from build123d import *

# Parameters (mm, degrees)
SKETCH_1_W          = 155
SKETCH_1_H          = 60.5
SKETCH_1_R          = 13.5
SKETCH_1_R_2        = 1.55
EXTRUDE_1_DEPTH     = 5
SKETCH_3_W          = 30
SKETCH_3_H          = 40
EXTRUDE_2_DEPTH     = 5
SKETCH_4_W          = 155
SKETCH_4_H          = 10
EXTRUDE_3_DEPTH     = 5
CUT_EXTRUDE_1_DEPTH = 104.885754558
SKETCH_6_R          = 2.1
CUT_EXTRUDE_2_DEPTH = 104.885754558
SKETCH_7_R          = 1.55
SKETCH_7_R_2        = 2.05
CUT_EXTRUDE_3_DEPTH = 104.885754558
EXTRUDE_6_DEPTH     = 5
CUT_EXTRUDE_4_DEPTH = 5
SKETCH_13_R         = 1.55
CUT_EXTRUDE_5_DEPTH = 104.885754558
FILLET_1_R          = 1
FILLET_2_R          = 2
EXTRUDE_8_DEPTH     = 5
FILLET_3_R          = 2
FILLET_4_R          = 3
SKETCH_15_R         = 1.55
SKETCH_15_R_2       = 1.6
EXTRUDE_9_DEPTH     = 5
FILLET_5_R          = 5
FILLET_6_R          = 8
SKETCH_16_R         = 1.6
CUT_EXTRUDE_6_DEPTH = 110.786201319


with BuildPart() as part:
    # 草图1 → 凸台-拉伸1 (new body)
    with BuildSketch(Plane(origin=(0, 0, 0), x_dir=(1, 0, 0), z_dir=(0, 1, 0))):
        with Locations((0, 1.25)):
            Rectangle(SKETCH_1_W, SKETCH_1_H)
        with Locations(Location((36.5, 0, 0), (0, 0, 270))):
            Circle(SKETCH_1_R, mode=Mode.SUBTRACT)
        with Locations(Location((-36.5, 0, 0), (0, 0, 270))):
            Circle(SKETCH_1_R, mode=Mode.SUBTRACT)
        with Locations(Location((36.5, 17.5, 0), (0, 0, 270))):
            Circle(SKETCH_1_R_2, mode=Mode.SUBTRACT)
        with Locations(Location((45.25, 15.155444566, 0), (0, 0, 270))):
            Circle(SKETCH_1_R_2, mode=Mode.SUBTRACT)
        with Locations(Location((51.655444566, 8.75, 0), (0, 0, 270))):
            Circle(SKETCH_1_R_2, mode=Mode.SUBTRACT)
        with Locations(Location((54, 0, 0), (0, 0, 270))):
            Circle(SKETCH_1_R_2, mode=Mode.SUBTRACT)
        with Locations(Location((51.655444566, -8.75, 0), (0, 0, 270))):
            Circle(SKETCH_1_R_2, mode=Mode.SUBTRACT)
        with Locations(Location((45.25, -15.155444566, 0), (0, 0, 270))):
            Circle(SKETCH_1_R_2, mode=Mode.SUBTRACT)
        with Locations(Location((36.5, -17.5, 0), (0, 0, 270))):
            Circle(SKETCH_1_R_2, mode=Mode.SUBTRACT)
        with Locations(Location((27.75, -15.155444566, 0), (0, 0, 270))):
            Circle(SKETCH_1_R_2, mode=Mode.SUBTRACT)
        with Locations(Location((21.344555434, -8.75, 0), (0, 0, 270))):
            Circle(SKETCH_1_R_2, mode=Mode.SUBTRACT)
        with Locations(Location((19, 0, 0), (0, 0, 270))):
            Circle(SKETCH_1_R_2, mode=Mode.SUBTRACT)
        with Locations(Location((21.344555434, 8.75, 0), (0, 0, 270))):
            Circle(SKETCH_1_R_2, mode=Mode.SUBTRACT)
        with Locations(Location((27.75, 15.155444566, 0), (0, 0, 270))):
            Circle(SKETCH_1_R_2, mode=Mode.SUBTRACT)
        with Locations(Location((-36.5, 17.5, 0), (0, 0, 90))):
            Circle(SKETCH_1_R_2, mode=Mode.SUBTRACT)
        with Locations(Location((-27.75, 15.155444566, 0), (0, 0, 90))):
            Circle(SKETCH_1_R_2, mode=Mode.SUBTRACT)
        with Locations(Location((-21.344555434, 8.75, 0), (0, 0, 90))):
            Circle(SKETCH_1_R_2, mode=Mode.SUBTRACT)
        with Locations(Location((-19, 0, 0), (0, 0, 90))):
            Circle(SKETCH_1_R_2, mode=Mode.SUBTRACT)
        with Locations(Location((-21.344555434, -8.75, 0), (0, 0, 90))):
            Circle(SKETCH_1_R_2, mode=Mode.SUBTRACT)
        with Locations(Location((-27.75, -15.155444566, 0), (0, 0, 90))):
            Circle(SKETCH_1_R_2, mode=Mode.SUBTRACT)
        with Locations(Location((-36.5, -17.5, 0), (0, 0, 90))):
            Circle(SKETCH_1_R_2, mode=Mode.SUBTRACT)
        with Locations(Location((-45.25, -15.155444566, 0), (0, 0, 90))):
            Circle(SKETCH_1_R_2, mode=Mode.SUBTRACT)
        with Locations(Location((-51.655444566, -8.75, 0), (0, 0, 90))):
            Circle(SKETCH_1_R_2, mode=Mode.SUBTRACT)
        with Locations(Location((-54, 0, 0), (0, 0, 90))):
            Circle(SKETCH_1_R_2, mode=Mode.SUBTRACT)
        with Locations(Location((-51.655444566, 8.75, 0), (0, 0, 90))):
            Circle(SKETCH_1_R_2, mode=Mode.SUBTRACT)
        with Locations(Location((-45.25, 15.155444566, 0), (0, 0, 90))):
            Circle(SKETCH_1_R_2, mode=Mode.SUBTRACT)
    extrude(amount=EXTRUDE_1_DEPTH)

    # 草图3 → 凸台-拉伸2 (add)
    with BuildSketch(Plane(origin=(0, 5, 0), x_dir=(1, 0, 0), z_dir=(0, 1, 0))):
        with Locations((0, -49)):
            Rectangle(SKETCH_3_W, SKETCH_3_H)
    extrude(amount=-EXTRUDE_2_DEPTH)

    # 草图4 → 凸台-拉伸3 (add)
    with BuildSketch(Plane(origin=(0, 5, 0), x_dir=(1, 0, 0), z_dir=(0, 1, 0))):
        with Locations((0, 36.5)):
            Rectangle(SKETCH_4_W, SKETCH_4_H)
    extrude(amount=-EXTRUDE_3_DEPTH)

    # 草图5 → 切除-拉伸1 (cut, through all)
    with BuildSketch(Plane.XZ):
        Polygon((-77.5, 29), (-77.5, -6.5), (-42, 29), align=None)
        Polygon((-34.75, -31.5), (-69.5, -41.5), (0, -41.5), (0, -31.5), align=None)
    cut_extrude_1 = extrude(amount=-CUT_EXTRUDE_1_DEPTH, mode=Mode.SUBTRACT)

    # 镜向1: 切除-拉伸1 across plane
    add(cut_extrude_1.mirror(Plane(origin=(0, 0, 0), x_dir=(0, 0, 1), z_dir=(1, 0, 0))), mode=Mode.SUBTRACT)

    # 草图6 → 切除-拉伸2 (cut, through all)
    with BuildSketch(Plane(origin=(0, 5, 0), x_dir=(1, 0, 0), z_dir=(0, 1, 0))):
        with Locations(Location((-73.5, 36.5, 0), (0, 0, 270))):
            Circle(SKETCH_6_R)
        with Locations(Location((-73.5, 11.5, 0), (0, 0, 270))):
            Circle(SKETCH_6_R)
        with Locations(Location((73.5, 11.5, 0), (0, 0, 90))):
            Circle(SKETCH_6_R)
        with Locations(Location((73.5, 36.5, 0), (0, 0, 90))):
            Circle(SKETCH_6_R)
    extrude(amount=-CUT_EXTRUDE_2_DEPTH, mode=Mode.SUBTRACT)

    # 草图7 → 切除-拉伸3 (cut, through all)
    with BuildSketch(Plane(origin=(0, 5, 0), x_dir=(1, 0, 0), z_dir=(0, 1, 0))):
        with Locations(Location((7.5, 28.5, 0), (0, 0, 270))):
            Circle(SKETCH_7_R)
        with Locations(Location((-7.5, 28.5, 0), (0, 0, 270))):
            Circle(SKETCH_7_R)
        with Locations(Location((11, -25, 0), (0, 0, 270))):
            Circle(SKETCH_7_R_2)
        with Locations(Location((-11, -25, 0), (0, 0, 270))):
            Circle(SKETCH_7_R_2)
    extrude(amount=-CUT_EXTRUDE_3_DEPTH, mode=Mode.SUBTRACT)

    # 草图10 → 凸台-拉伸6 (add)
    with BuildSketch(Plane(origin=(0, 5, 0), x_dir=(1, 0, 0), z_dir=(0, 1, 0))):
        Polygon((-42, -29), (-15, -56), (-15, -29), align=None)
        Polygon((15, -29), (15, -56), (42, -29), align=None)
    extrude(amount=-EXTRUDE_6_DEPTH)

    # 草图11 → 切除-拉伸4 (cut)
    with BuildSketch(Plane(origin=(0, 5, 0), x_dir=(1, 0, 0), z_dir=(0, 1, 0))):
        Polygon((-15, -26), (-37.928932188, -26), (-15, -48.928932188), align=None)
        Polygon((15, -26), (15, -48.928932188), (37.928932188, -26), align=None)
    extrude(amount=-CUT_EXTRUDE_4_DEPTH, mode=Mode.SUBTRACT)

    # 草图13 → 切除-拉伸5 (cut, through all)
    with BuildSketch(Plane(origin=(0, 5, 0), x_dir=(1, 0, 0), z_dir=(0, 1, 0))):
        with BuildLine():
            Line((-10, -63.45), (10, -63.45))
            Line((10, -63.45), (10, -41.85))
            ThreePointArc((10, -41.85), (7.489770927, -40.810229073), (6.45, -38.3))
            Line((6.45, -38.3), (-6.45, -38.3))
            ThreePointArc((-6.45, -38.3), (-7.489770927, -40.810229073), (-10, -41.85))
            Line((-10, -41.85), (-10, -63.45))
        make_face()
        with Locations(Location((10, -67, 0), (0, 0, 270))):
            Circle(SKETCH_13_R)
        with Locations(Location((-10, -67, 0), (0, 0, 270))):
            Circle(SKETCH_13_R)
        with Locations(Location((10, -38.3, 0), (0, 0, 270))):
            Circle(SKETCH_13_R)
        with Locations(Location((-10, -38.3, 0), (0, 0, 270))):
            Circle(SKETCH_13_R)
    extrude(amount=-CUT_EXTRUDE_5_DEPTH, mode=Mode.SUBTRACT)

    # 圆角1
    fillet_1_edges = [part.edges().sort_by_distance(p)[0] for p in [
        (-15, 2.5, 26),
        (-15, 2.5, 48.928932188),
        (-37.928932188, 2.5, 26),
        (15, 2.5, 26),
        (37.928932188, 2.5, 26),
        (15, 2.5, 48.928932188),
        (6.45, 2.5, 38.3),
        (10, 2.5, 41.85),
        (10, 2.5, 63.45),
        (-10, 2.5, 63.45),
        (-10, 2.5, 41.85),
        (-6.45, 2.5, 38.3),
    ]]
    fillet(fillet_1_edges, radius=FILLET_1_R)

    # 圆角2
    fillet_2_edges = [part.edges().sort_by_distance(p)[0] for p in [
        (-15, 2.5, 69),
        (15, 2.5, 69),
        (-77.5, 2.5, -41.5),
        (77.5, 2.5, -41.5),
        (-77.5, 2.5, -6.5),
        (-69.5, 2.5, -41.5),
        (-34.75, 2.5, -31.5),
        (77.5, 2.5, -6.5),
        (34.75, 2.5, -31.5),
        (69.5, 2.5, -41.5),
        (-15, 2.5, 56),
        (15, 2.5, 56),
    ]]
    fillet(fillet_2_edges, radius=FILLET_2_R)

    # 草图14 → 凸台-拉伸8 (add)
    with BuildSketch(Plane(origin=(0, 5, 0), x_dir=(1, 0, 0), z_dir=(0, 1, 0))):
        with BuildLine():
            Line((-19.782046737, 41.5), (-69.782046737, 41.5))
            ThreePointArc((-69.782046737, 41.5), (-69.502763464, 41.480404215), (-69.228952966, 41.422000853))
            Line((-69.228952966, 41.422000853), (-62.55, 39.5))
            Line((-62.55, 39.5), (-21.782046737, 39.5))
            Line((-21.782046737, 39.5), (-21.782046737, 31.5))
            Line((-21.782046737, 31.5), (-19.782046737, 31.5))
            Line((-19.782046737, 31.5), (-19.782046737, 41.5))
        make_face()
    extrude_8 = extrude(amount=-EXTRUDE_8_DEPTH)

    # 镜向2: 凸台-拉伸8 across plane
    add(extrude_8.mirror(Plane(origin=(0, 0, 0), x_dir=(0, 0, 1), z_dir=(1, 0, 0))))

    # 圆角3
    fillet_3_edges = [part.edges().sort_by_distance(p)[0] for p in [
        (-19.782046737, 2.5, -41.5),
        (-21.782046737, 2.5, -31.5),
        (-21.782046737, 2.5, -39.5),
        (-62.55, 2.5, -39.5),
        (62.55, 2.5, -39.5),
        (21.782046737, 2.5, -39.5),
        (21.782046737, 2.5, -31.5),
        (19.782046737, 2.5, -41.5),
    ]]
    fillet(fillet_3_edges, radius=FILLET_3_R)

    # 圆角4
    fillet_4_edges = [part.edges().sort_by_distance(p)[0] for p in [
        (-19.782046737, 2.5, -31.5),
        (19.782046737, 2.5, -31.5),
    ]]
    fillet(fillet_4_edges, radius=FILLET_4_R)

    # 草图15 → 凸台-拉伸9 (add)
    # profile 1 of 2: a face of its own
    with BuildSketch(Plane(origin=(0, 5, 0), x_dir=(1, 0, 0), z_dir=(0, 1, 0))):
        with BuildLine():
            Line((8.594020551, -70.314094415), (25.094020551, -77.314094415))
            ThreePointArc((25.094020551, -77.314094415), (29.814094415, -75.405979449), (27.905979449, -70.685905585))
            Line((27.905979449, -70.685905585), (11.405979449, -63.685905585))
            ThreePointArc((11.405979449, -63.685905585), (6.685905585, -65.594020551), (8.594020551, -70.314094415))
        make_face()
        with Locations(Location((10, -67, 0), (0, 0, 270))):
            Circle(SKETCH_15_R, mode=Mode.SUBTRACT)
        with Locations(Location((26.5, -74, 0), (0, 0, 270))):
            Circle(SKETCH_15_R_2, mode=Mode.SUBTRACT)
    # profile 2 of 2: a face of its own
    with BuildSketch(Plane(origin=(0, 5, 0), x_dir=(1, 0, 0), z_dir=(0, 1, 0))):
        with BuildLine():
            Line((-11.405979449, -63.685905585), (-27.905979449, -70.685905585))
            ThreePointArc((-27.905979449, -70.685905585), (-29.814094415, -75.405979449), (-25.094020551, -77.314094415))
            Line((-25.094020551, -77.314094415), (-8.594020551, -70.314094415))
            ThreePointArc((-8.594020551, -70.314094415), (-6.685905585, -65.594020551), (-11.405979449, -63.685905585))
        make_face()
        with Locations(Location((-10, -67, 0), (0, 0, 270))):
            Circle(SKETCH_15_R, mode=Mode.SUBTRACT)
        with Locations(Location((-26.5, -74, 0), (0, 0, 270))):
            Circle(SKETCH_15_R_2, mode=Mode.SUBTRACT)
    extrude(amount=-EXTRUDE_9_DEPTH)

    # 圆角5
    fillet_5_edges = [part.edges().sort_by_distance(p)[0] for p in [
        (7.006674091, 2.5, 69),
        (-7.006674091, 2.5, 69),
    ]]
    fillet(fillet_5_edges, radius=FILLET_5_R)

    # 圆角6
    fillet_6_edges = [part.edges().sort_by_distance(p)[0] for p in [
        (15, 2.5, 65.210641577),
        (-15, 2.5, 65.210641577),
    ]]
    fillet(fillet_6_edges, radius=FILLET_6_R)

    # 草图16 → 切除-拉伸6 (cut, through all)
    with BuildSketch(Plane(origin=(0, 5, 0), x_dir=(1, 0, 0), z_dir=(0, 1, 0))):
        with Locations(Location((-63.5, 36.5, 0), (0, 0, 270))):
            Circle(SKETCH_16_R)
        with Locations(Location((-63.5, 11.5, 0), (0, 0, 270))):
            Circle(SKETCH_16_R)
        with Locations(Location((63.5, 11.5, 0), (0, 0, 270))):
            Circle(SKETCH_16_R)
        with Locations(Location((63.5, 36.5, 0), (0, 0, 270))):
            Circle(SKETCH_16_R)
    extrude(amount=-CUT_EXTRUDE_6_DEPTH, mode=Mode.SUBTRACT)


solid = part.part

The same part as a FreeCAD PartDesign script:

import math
import FreeCAD as App
import Part
import Sketcher

V = App.Vector


def edges_at(feature, points):
    """Names of the edges that pass closest to the given points."""
    edges = feature.Shape.Edges
    near = lambda p: min(range(len(edges)), key=lambda i: edges[i].distToShape(Part.Vertex(*p))[0])
    return sorted({f"Edge{near(p) + 1}" for p in points})


def add_polygon(sketch, points):
    """Adds a closed chain of lines whose ends are joined by coincident constraints."""
    first, n = sketch.GeometryCount, len(points)
    for a, b in zip(points, points[1:] + points[:1]):
        sketch.addGeometry(Part.LineSegment(App.Vector(*a, 0), App.Vector(*b, 0)), False)
    for i in range(n):
        sketch.addConstraint(Sketcher.Constraint("Coincident", first + i, 2, first + (i + 1) % n, 1))

doc = App.newDocument("Part")
body = doc.addObject("PartDesign::Body", "Body")

sketch1 = body.newObject("Sketcher::SketchObject", "Sketch")
sketch1.AttachmentSupport = (doc.getObject("XZ_Plane"), [""])
sketch1.MapMode = "FlatFace"
add_polygon(sketch1, [(-77.5, -31.5), (-77.5, 29), (77.5, 29), (77.5, -31.5)])
sketch1.addGeometry(Part.Circle(V(-45.2, 15.2, 0), V(0, 0, 1), 1.6), False)
sketch1.addGeometry(Part.Circle(V(-36.5, 17.5, 0), V(0, 0, 1), 1.6), False)
sketch1.addGeometry(Part.Circle(V(-27.8, 15.2, 0), V(0, 0, 1), 1.6), False)
sketch1.addGeometry(Part.Circle(V(-51.7, 8.8, 0), V(0, 0, 1), 1.6), False)
sketch1.addGeometry(Part.Circle(V(-21.3, 8.8, 0), V(0, 0, 1), 1.6), False)
sketch1.addGeometry(Part.Circle(V(27.8, 15.2, 0), V(0, 0, 1), 1.6), False)
sketch1.addGeometry(Part.Circle(V(36.5, 17.5, 0), V(0, 0, 1), 1.6), False)
sketch1.addGeometry(Part.Circle(V(45.2, 15.2, 0), V(0, 0, 1), 1.6), False)
sketch1.addGeometry(Part.Circle(V(21.3, 8.8, 0), V(0, 0, 1), 1.6), False)
sketch1.addGeometry(Part.Circle(V(51.7, 8.8, 0), V(0, 0, 1), 1.6), False)
sketch1.addGeometry(Part.Circle(V(-54, 0, 0), V(0, 0, 1), 1.6), False)
sketch1.addGeometry(Part.Circle(V(-36.5, 0, 0), V(0, 0, 1), 13.5), False)
sketch1.addGeometry(Part.Circle(V(-51.7, -8.8, 0), V(0, 0, 1), 1.6), False)
sketch1.addGeometry(Part.Circle(V(-19, 0, 0), V(0, 0, 1), 1.6), False)
sketch1.addGeometry(Part.Circle(V(-21.3, -8.8, 0), V(0, 0, 1), 1.6), False)
sketch1.addGeometry(Part.Circle(V(-45.2, -15.2, 0), V(0, 0, 1), 1.6), False)
sketch1.addGeometry(Part.Circle(V(-36.5, -17.5, 0), V(0, 0, 1), 1.6), False)
sketch1.addGeometry(Part.Circle(V(-27.8, -15.2, 0), V(0, 0, 1), 1.6), False)
sketch1.addGeometry(Part.Circle(V(19, 0, 0), V(0, 0, 1), 1.6), False)
sketch1.addGeometry(Part.Circle(V(21.3, -8.8, 0), V(0, 0, 1), 1.6), False)
sketch1.addGeometry(Part.Circle(V(36.5, 0, 0), V(0, 0, 1), 13.5), False)
sketch1.addGeometry(Part.Circle(V(54, 0, 0), V(0, 0, 1), 1.6), False)
sketch1.addGeometry(Part.Circle(V(51.7, -8.8, 0), V(0, 0, 1), 1.6), False)
sketch1.addGeometry(Part.Circle(V(27.8, -15.2, 0), V(0, 0, 1), 1.6), False)
sketch1.addGeometry(Part.Circle(V(36.5, -17.5, 0), V(0, 0, 1), 1.6), False)
sketch1.addGeometry(Part.Circle(V(45.2, -15.2, 0), V(0, 0, 1), 1.6), False)
sketch1.addConstraint([
    Sketcher.Constraint("Vertical", 0),
    Sketcher.Constraint("Horizontal", 1),
    Sketcher.Constraint("Vertical", 2),
    Sketcher.Constraint("Horizontal", 3),
    Sketcher.Constraint("Equal", 4, 5),
    Sketcher.Constraint("Equal", 5, 6),
    Sketcher.Constraint("Equal", 6, 7),
    Sketcher.Constraint("Equal", 7, 8),
    Sketcher.Constraint("Equal", 8, 9),
    Sketcher.Constraint("Equal", 9, 10),
    Sketcher.Constraint("Equal", 10, 11),
    Sketcher.Constraint("Equal", 11, 12),
    Sketcher.Constraint("Equal", 12, 13),
    Sketcher.Constraint("Equal", 13, 14),
    Sketcher.Constraint("Equal", 14, 16),
    Sketcher.Constraint("Equal", 16, 17),
    Sketcher.Constraint("Equal", 17, 18),
    Sketcher.Constraint("Equal", 18, 19),
    Sketcher.Constraint("Equal", 19, 20),
    Sketcher.Constraint("Equal", 20, 21),
    Sketcher.Constraint("Equal", 21, 22),
    Sketcher.Constraint("Equal", 22, 23),
    Sketcher.Constraint("Equal", 15, 24),
    Sketcher.Constraint("Equal", 23, 25),
    Sketcher.Constraint("Equal", 25, 26),
    Sketcher.Constraint("Equal", 26, 27),
    Sketcher.Constraint("Equal", 27, 28),
    Sketcher.Constraint("Equal", 28, 29),
    Sketcher.Constraint("Symmetric", 13, 3, 16, 3, -1, 1),
    Sketcher.Constraint("Symmetric", 12, 3, 18, 3, -1, 1),
    Sketcher.Constraint("Symmetric", 11, 3, 19, 3, -1, 1),
    Sketcher.Constraint("Symmetric", 10, 3, 20, 3, -1, 1),
    Sketcher.Constraint("Symmetric", 9, 3, 21, 3, -1, 1),
    Sketcher.Constraint("Symmetric", 17, 3, 22, 3, -1, 1),
    Sketcher.Constraint("Symmetric", 8, 3, 23, 3, -1, 1),
    Sketcher.Constraint("Symmetric", 15, 3, 24, 3, -1, 1),
    Sketcher.Constraint("Symmetric", 14, 3, 25, 3, -1, 1),
    Sketcher.Constraint("Symmetric", 7, 3, 26, 3, -1, 1),
    Sketcher.Constraint("Symmetric", 6, 3, 27, 3, -1, 1),
    Sketcher.Constraint("Symmetric", 5, 3, 28, 3, -1, 1),
    Sketcher.Constraint("Symmetric", 4, 3, 29, 3, -1, 1),
    Sketcher.Constraint("Symmetric", 6, 3, 9, 3, -2),
    Sketcher.Constraint("Symmetric", 5, 3, 10, 3, -2),
    Sketcher.Constraint("Symmetric", 4, 3, 11, 3, -2),
    Sketcher.Constraint("Symmetric", 8, 3, 12, 3, -2),
    Sketcher.Constraint("Symmetric", 7, 3, 13, 3, -2),
    Sketcher.Constraint("PointOnObject", 14, 3, -1),
    Sketcher.Constraint("PointOnObject", 15, 3, -1),
    Sketcher.Constraint("PointOnObject", 17, 3, -1),
    Sketcher.Constraint("Horizontal", 4, 3, 6, 3),
    Sketcher.Constraint("Horizontal", 7, 3, 8, 3),
    Sketcher.Constraint("Vertical", 5, 3, 15, 3),
    Sketcher.Constraint("Diameter", 15, 27.0),
    Sketcher.Constraint("Diameter", 4, 3.1),
    Sketcher.Constraint("DistanceX", 1, 1, 1, 2, 155.0),
    Sketcher.Constraint("DistanceY", 0, 1, 0, 2, 60.5),
    Sketcher.Constraint("DistanceX", 14, 3, -1, 1, 54.0),
    Sketcher.Constraint("DistanceX", 17, 3, -1, 1, 19.0),
    Sketcher.Constraint("DistanceY", -1, 1, 0, 2, 29.0),
    Sketcher.Constraint("DistanceX", 4, 3, 9, 3, 73.0),
    Sketcher.Constraint("DistanceX", 5, 3, 10, 3, 73.0),
    Sketcher.Constraint("DistanceX", 8, 3, 13, 3, 73.0),
    Sketcher.Constraint("DistanceX", 0, 2, 5, 3, 41.0),
    Sketcher.Constraint("DistanceY", 2, 2, 28, 3, 14.0),
    Sketcher.Constraint("DistanceX", 4, 3, 6, 3, 17.5),
    Sketcher.Constraint("DistanceY", 16, 3, 7, 3, 17.5),
    Sketcher.Constraint("DistanceX", 7, 3, 8, 3, 30.310889),
    Sketcher.Constraint("DistanceY", -1, 1, 4, 3, 15.155445),
])
pad1 = body.newObject("PartDesign::Pad", "Pad")
pad1.Profile = sketch1
pad1.Length = 5
pad1.Reversed = True

sketch2 = body.newObject("Sketcher::SketchObject", "Sketch001")
sketch2.AttachmentSupport = (doc.getObject("XZ_Plane"), [""])
sketch2.MapMode = "FlatFace"
sketch2.AttachmentOffset = App.Placement(V(0, 0, -5), App.Rotation())
add_polygon(sketch2, [(-15, 29), (-15, 69), (15, 69), (15, 29)])
sketch2.addConstraint([
    Sketcher.Constraint("Vertical", 0),
    Sketcher.Constraint("Horizontal", 1),
    Sketcher.Constraint("Vertical", 2),
    Sketcher.Constraint("Horizontal", 3),
    Sketcher.Constraint("DistanceX", 1, 1, 1, 2, 30.0),
    Sketcher.Constraint("DistanceY", 0, 1, 0, 2, 40.0),
    Sketcher.Constraint("DistanceX", 0, 2, -1, 1, 15.0),
    Sketcher.Constraint("DistanceY", -1, 1, 0, 2, 69.0),
])
pad2 = body.newObject("PartDesign::Pad", "Pad001")
pad2.Profile = sketch2
pad2.Length = 5

sketch3 = body.newObject("Sketcher::SketchObject", "Sketch002")
sketch3.AttachmentSupport = (doc.getObject("XZ_Plane"), [""])
sketch3.MapMode = "FlatFace"
sketch3.AttachmentOffset = App.Placement(V(0, 0, -5), App.Rotation())
add_polygon(sketch3, [(-78, -42), (-78, -32), (78, -32), (78, -42)])
sketch3.addConstraint([
    Sketcher.Constraint("Vertical", 0),
    Sketcher.Constraint("Horizontal", 1),
    Sketcher.Constraint("Vertical", 2),
    Sketcher.Constraint("Horizontal", 3),
    Sketcher.Constraint("DistanceX", 1, 1, 1, 2, 155.0),
    Sketcher.Constraint("DistanceY", 0, 1, 0, 2, 10.0),
    Sketcher.Constraint("DistanceX", 0, 2, -1, 1, 77.5),
    Sketcher.Constraint("DistanceY", 0, 2, -1, 1, 31.5),
])
pad3 = body.newObject("PartDesign::Pad", "Pad002")
pad3.Profile = sketch3
pad3.Length = 5

sketch4 = body.newObject("Sketcher::SketchObject", "Sketch003")
sketch4.AttachmentSupport = (doc.getObject("XZ_Plane"), [""])
sketch4.MapMode = "FlatFace"
add_polygon(sketch4, [(-78, 29), (-78, -6), (-42, 29)])
add_polygon(sketch4, [(-35, -32), (-70, -42), (0, -42), (0, -32)])
sketch4.addConstraint([
    Sketcher.Constraint("Vertical", 0),
    Sketcher.Constraint("Horizontal", 2),
    Sketcher.Constraint("Horizontal", 4),
    Sketcher.Constraint("Vertical", 5),
    Sketcher.Constraint("Horizontal", 6),
    Sketcher.Constraint("PointOnObject", 4, 2, -2),
    Sketcher.Constraint("Equal", 2, 0),
    Sketcher.Constraint("DistanceY", 5, 1, 5, 2, 10.0),
    Sketcher.Constraint("DistanceX", 2, 2, 2, 1, 35.5),
    Sketcher.Constraint("DistanceX", 4, 1, 4, 2, 69.5),
    Sketcher.Constraint("DistanceX", 1, 2, -1, 1, 42.0),
    Sketcher.Constraint("DistanceY", -1, 1, 1, 2, 29.0),
    Sketcher.Constraint("DistanceY", 3, 2, 0, 2, 35.0),
    Sketcher.Constraint("DistanceX", 6, 2, 6, 1, 34.75),
])
pocket1 = body.newObject("PartDesign::Pocket", "Pocket")
pocket1.Profile = sketch4
pocket1.Type = "ThroughAll"
doc.recompute()

mirrored = body.newObject("PartDesign::Mirrored", "Mirrored")
mirrored.Originals = [pocket1]
mirrored.MirrorPlane = (doc.getObject("YZ_Plane"), [""])
body.Tip = mirrored

sketch5 = body.newObject("Sketcher::SketchObject", "Sketch004")
sketch5.AttachmentSupport = (doc.getObject("XZ_Plane"), [""])
sketch5.MapMode = "FlatFace"
sketch5.AttachmentOffset = App.Placement(V(0, 0, -5), App.Rotation())
sketch5.addGeometry([
    Part.Circle(V(-73.5, -36.5, 0), V(0, 0, 1), 2.1),
    Part.Circle(V(-73.5, -11.5, 0), V(0, 0, 1), 2.1),
    Part.Circle(V(73.5, -11.5, 0), V(0, 0, 1), 2.1),
    Part.Circle(V(73.5, -36.5, 0), V(0, 0, 1), 2.1),
], False)
sketch5.addConstraint([
    Sketcher.Constraint("Equal", 0, 1),
    Sketcher.Constraint("Equal", 1, 2),
    Sketcher.Constraint("Equal", 2, 3),
    Sketcher.Constraint("Symmetric", 1, 3, 2, 3, -2),
    Sketcher.Constraint("Symmetric", 0, 3, 3, 3, -2),
    Sketcher.Constraint("Vertical", 0, 3, 1, 3),
    Sketcher.Constraint("Diameter", 0, 4.2),
    Sketcher.Constraint("DistanceY", 0, 3, 1, 3, 25.0),
    Sketcher.Constraint("DistanceX", 1, 3, 2, 3, 147.0),
    Sketcher.Constraint("DistanceY", 0, 3, -1, 1, 36.5),
])
pocket2 = body.newObject("PartDesign::Pocket", "Pocket001")
pocket2.Profile = sketch5
pocket2.Type = "ThroughAll"
pocket2.Reversed = True

sketch6 = body.newObject("Sketcher::SketchObject", "Sketch005")
sketch6.AttachmentSupport = (doc.getObject("XZ_Plane"), [""])
sketch6.MapMode = "FlatFace"
sketch6.AttachmentOffset = App.Placement(V(0, 0, -5), App.Rotation())
sketch6.addGeometry([
    Part.Circle(V(7.5, -28.5, 0), V(0, 0, 1), 1.6),
    Part.Circle(V(-7.5, -28.5, 0), V(0, 0, 1), 1.6),
    Part.Circle(V(11, 25, 0), V(0, 0, 1), 2),
    Part.Circle(V(-11, 25, 0), V(0, 0, 1), 2),
], False)
sketch6.addConstraint([
    Sketcher.Constraint("Equal", 0, 1),
    Sketcher.Constraint("Equal", 2, 3),
    Sketcher.Constraint("Symmetric", 0, 3, 1, 3, -2),
    Sketcher.Constraint("Symmetric", 2, 3, 3, 3, -2),
    Sketcher.Constraint("Diameter", 0, 3.1),
    Sketcher.Constraint("Diameter", 2, 4.1),
    Sketcher.Constraint("DistanceX", -1, 1, 2, 3, 11.0),
    Sketcher.Constraint("DistanceY", -1, 1, 2, 3, 25.0),
    Sketcher.Constraint("DistanceX", 1, 3, 0, 3, 15.0),
    Sketcher.Constraint("DistanceY", 0, 3, -1, 1, 28.5),
])
pocket3 = body.newObject("PartDesign::Pocket", "Pocket002")
pocket3.Profile = sketch6
pocket3.Type = "ThroughAll"
pocket3.Reversed = True

sketch7 = body.newObject("Sketcher::SketchObject", "Sketch006")
sketch7.AttachmentSupport = (doc.getObject("XZ_Plane"), [""])
sketch7.MapMode = "FlatFace"
sketch7.AttachmentOffset = App.Placement(V(0, 0, -5), App.Rotation())
add_polygon(sketch7, [(-42, 29), (-15, 56), (-15, 29)])
add_polygon(sketch7, [(15, 29), (15, 56), (42, 29)])
sketch7.addConstraint([
    Sketcher.Constraint("Vertical", 1),
    Sketcher.Constraint("Horizontal", 2),
    Sketcher.Constraint("Vertical", 3),
    Sketcher.Constraint("Horizontal", 5),
    Sketcher.Constraint("Symmetric", 0, 2, 3, 2, -2),
    Sketcher.Constraint("Symmetric", 2, 2, 4, 2, -2),
    Sketcher.Constraint("Perpendicular", 0, 4),
    Sketcher.Constraint("DistanceX", 2, 2, 2, 1, 27.0),
    Sketcher.Constraint("DistanceX", 0, 2, -1, 1, 15.0),
    Sketcher.Constraint("DistanceY", -1, 1, 0, 2, 56.0),
])
pad4 = body.newObject("PartDesign::Pad", "Pad003")
pad4.Profile = sketch7
pad4.Length = 5

sketch8 = body.newObject("Sketcher::SketchObject", "Sketch007")
sketch8.AttachmentSupport = (doc.getObject("XZ_Plane"), [""])
sketch8.MapMode = "FlatFace"
sketch8.AttachmentOffset = App.Placement(V(0, 0, -5), App.Rotation())
add_polygon(sketch8, [(-15, 26), (-38, 26), (-15, 49)])
add_polygon(sketch8, [(15, 26), (15, 49), (38, 26)])
sketch8.addConstraint([
    Sketcher.Constraint("Horizontal", 0),
    Sketcher.Constraint("Vertical", 2),
    Sketcher.Constraint("Vertical", 3),
    Sketcher.Constraint("Horizontal", 5),
    Sketcher.Constraint("Symmetric", 1, 2, 3, 2, -2),
    Sketcher.Constraint("Symmetric", 0, 2, 4, 2, -2),
    Sketcher.Constraint("Perpendicular", 1, 4),
    Sketcher.Constraint("DistanceY", -1, 1, 0, 2, 26.0),
    Sketcher.Constraint("DistanceX", 1, 2, -1, 1, 15.0),
    Sketcher.Constraint("DistanceX", 0, 2, 0, 1, 22.928932),
])
pocket4 = body.newObject("PartDesign::Pocket", "Pocket003")
pocket4.Profile = sketch8
pocket4.Length = 5
pocket4.Reversed = True

sketch9 = body.newObject("Sketcher::SketchObject", "Sketch008")
sketch9.AttachmentSupport = (doc.getObject("XZ_Plane"), [""])
sketch9.MapMode = "FlatFace"
sketch9.AttachmentOffset = App.Placement(V(0, 0, -5), App.Rotation())
sketch9.addGeometry([
    Part.LineSegment(V(-10, 63.5, 0), V(10, 63.5, 0)),
    Part.LineSegment(V(10, 63.5, 0), V(10, 41.9, 0)),
    Part.ArcOfCircle(Part.Circle(V(10, 38.3, 0), V(0, 0, 1), 3.6), math.radians(90), math.radians(180)),
    Part.LineSegment(V(6.5, 38.3, 0), V(-6.5, 38.3, 0)),
    Part.ArcOfCircle(Part.Circle(V(-10, 38.3, 0), V(0, 0, 1), 3.6), math.radians(0), math.radians(90)),
    Part.LineSegment(V(-10, 41.9, 0), V(-10, 63.5, 0)),
    Part.Circle(V(10, 67, 0), V(0, 0, 1), 1.6),
    Part.Circle(V(-10, 67, 0), V(0, 0, 1), 1.6),
    Part.Circle(V(10, 38.3, 0), V(0, 0, 1), 1.6),
    Part.Circle(V(-10, 38.3, 0), V(0, 0, 1), 1.6),
], False)
sketch9.addConstraint([
    Sketcher.Constraint("Coincident", 0, 2, 1, 1),
    Sketcher.Constraint("Coincident", 1, 2, 2, 1),
    Sketcher.Constraint("Coincident", 2, 2, 3, 1),
    Sketcher.Constraint("Coincident", 3, 2, 4, 1),
    Sketcher.Constraint("Coincident", 4, 2, 5, 1),
    Sketcher.Constraint("Coincident", 5, 2, 0, 1),
    Sketcher.Constraint("Horizontal", 0),
    Sketcher.Constraint("Vertical", 1),
    Sketcher.Constraint("Horizontal", 3),
    Sketcher.Constraint("Vertical", 5),
    Sketcher.Constraint("Coincident", 8, 3, 2, 3),
    Sketcher.Constraint("Coincident", 9, 3, 4, 3),
    Sketcher.Constraint("Equal", 2, 4),
    Sketcher.Constraint("Equal", 6, 7),
    Sketcher.Constraint("Equal", 7, 8),
    Sketcher.Constraint("Equal", 8, 9),
    Sketcher.Constraint("Symmetric", 2, 3, 4, 3, -2),
    Sketcher.Constraint("Symmetric", 6, 3, 7, 3, -2),
    Sketcher.Constraint("Horizontal", 9, 3, 2, 2),
    Sketcher.Constraint("Vertical", 2, 3, 6, 3),
    Sketcher.Constraint("Vertical", 8, 3, 0, 2),
    Sketcher.Constraint("Vertical", 9, 3, 4, 2),
    Sketcher.Constraint("Diameter", 6, 3.1),
    Sketcher.Constraint("DistanceX", 0, 1, 0, 2, 20.0),
    Sketcher.Constraint("Radius", 2, 3.55),
    Sketcher.Constraint("DistanceY", 1, 2, 1, 1, 21.6),
    Sketcher.Constraint("DistanceY", -1, 1, 6, 3, 67.0),
    Sketcher.Constraint("DistanceY", -1, 1, 2, 3, 38.3),
])
pocket5 = body.newObject("PartDesign::Pocket", "Pocket004")
pocket5.Profile = sketch9
pocket5.Type = "ThroughAll"
pocket5.Reversed = True
doc.recompute()

fillet = body.newObject("PartDesign::Fillet", "Fillet")
fillet.Base = (pocket5, edges_at(pocket5, [
    (-15, 2.5, 26),
    (-15, 2.5, 48.929),
    (-37.929, 2.5, 26),
    (15, 2.5, 26),
    (37.929, 2.5, 26),
    (15, 2.5, 48.929),
    (6.45, 2.5, 38.3),
    (10, 2.5, 41.85),
    (10, 2.5, 63.45),
    (-10, 2.5, 63.45),
    (-10, 2.5, 41.85),
    (-6.45, 2.5, 38.3),
]))
fillet.Radius = 1
doc.recompute()

fillet2 = body.newObject("PartDesign::Fillet", "Fillet001")
fillet2.Base = (fillet, edges_at(fillet, [
    (-15, 2.5, 69),
    (15, 2.5, 69),
    (-77.5, 2.5, -41.5),
    (77.5, 2.5, -41.5),
    (-77.5, 2.5, -6.5),
    (-69.5, 2.5, -41.5),
    (-34.75, 2.5, -31.5),
    (77.5, 2.5, -6.5),
    (34.75, 2.5, -31.5),
    (69.5, 2.5, -41.5),
    (-15, 2.5, 56),
    (15, 2.5, 56),
]))
fillet2.Radius = 2

sketch10 = body.newObject("Sketcher::SketchObject", "Sketch009")
sketch10.AttachmentSupport = (doc.getObject("XZ_Plane"), [""])
sketch10.MapMode = "FlatFace"
sketch10.AttachmentOffset = App.Placement(V(0, 0, -5), App.Rotation())
sketch10.addGeometry([
    Part.LineSegment(V(-19.8, -41.5, 0), V(-69.8, -41.5, 0)),
    Part.ArcOfCircle(Part.Circle(V(-69.8, -39.5, 0), V(0, 0, 1), 2), math.radians(-90), math.radians(-73.95)),
    Part.LineSegment(V(-69.2, -41.4, 0), V(-62.5, -39.5, 0)),
    Part.LineSegment(V(-62.5, -39.5, 0), V(-21.8, -39.5, 0)),
    Part.LineSegment(V(-21.8, -39.5, 0), V(-21.8, -31.5, 0)),
    Part.LineSegment(V(-21.8, -31.5, 0), V(-19.8, -31.5, 0)),
    Part.LineSegment(V(-19.8, -31.5, 0), V(-19.8, -41.5, 0)),
], False)
sketch10.addConstraint([
    Sketcher.Constraint("Tangent", 0, 2, 1, 1),
    Sketcher.Constraint("Tangent", 1, 2, 2, 1),
    Sketcher.Constraint("Coincident", 2, 2, 3, 1),
    Sketcher.Constraint("Coincident", 3, 2, 4, 1),
    Sketcher.Constraint("Coincident", 4, 2, 5, 1),
    Sketcher.Constraint("Coincident", 5, 2, 6, 1),
    Sketcher.Constraint("Coincident", 6, 2, 0, 1),
    Sketcher.Constraint("Horizontal", 0),
    Sketcher.Constraint("Horizontal", 3),
    Sketcher.Constraint("Vertical", 4),
    Sketcher.Constraint("Horizontal", 5),
    Sketcher.Constraint("Vertical", 6),
    Sketcher.Constraint("Horizontal", 1, 3, 2, 2),
    Sketcher.Constraint("Radius", 1, 2.0),
    Sketcher.Constraint("DistanceX", 0, 2, 0, 1, 50.0),
    Sketcher.Constraint("DistanceX", 5, 1, 5, 2, 2.0),
    Sketcher.Constraint("DistanceY", 4, 1, 4, 2, 8.0),
    Sketcher.Constraint("DistanceY", 1, 3, -1, 1, 39.5),
    Sketcher.Constraint("Distance", 2, 6.95),
    Sketcher.Constraint("DistanceX", 2, 2, -1, 1, 62.55),
])
pad5 = body.newObject("PartDesign::Pad", "Pad004")
pad5.Profile = sketch10
pad5.Length = 5
doc.recompute()

mirrored2 = body.newObject("PartDesign::Mirrored", "Mirrored001")
mirrored2.Originals = [pad5]
mirrored2.MirrorPlane = (doc.getObject("YZ_Plane"), [""])
body.Tip = mirrored2
doc.recompute()

fillet3 = body.newObject("PartDesign::Fillet", "Fillet002")
fillet3.Base = (mirrored2, edges_at(mirrored2, [
    (-19.782, 2.5, -41.5),
    (-21.782, 2.5, -31.5),
    (-21.782, 2.5, -39.5),
    (-62.55, 2.5, -39.5),
    (62.55, 2.5, -39.5),
    (21.782, 2.5, -39.5),
    (21.782, 2.5, -31.5),
    (19.782, 2.5, -41.5),
]))
fillet3.Radius = 2
doc.recompute()

fillet4 = body.newObject("PartDesign::Fillet", "Fillet003")
fillet4.Base = (fillet3, edges_at(fillet3, [(-19.782, 2.5, -31.5), (19.782, 2.5, -31.5)]))
fillet4.Radius = 3

sketch11 = body.newObject("Sketcher::SketchObject", "Sketch010")
sketch11.AttachmentSupport = (doc.getObject("XZ_Plane"), [""])
sketch11.MapMode = "FlatFace"
sketch11.AttachmentOffset = App.Placement(V(0, 0, -5), App.Rotation())
sketch11.addGeometry([
    Part.LineSegment(V(8.6, 70.3, 0), V(25.1, 77.3, 0)),
    Part.ArcOfCircle(Part.Circle(V(26.5, 74, 0), V(0, 0, 1), 3.6), math.radians(-67), math.radians(113)),
    Part.LineSegment(V(27.9, 70.7, 0), V(11.4, 63.7, 0)),
    Part.ArcOfCircle(Part.Circle(V(10, 67, 0), V(0, 0, 1), 3.6), math.radians(113), math.radians(293)),
    Part.Circle(V(26.5, 74, 0), V(0, 0, 1), 1.6),
    Part.Circle(V(10, 67, 0), V(0, 0, 1), 1.6),
    Part.LineSegment(V(-11.4, 63.7, 0), V(-27.9, 70.7, 0)),
    Part.ArcOfCircle(Part.Circle(V(-26.5, 74, 0), V(0, 0, 1), 3.6), math.radians(67), math.radians(247)),
    Part.LineSegment(V(-25.1, 77.3, 0), V(-8.6, 70.3, 0)),
    Part.ArcOfCircle(Part.Circle(V(-10, 67, 0), V(0, 0, 1), 3.6), math.radians(-113), math.radians(67)),
    Part.Circle(V(-26.5, 74, 0), V(0, 0, 1), 1.6),
    Part.Circle(V(-10, 67, 0), V(0, 0, 1), 1.6),
], False)
sketch11.addConstraint([
    Sketcher.Constraint("Tangent", 0, 2, 1, 2),
    Sketcher.Constraint("Tangent", 1, 1, 2, 1),
    Sketcher.Constraint("Tangent", 2, 2, 3, 2),
    Sketcher.Constraint("Tangent", 3, 1, 0, 1),
    Sketcher.Constraint("Tangent", 6, 2, 7, 2),
    Sketcher.Constraint("Tangent", 7, 1, 8, 1),
    Sketcher.Constraint("Tangent", 8, 2, 9, 2),
    Sketcher.Constraint("Tangent", 9, 1, 6, 1),
    Sketcher.Constraint("Coincident", 4, 3, 1, 3),
    Sketcher.Constraint("Coincident", 5, 3, 3, 3),
    Sketcher.Constraint("Coincident", 10, 3, 7, 3),
    Sketcher.Constraint("Coincident", 11, 3, 9, 3),
    Sketcher.Constraint("Equal", 1, 3),
    Sketcher.Constraint("Equal", 3, 7),
    Sketcher.Constraint("Equal", 7, 9),
    Sketcher.Constraint("Equal", 4, 10),
    Sketcher.Constraint("Equal", 5, 11),
    Sketcher.Constraint("Symmetric", 1, 3, 7, 3, -2),
    Sketcher.Constraint("Symmetric", 3, 3, 9, 3, -2),
    Sketcher.Constraint("Diameter", 4, 3.2),
    Sketcher.Constraint("Diameter", 5, 3.1),
    Sketcher.Constraint("Radius", 1, 3.6),
    Sketcher.Constraint("DistanceY", -1, 1, 1, 3, 74.0),
    Sketcher.Constraint("DistanceX", -1, 1, 3, 3, 10.0),
    Sketcher.Constraint("DistanceY", -1, 1, 3, 3, 67.0),
    Sketcher.Constraint("DistanceX", 7, 3, 1, 3, 53.0),
])
pad6 = body.newObject("PartDesign::Pad", "Pad005")
pad6.Profile = sketch11
pad6.Length = 5
doc.recompute()

fillet5 = body.newObject("PartDesign::Fillet", "Fillet004")
fillet5.Base = (pad6, edges_at(pad6, [(7.007, 2.5, 69), (-7.007, 2.5, 69)]))
fillet5.Radius = 5
doc.recompute()

fillet6 = body.newObject("PartDesign::Fillet", "Fillet005")
fillet6.Base = (fillet5, edges_at(fillet5, [(15, 2.5, 65.211), (-15, 2.5, 65.211)]))
fillet6.Radius = 8

sketch12 = body.newObject("Sketcher::SketchObject", "Sketch011")
sketch12.AttachmentSupport = (doc.getObject("XZ_Plane"), [""])
sketch12.MapMode = "FlatFace"
sketch12.AttachmentOffset = App.Placement(V(0, 0, -5), App.Rotation())
sketch12.addGeometry([
    Part.Circle(V(-63.5, -36.5, 0), V(0, 0, 1), 1.6),
    Part.Circle(V(-63.5, -11.5, 0), V(0, 0, 1), 1.6),
    Part.Circle(V(63.5, -11.5, 0), V(0, 0, 1), 1.6),
    Part.Circle(V(63.5, -36.5, 0), V(0, 0, 1), 1.6),
], False)
sketch12.addConstraint([
    Sketcher.Constraint("Equal", 0, 1),
    Sketcher.Constraint("Equal", 1, 2),
    Sketcher.Constraint("Equal", 2, 3),
    Sketcher.Constraint("Symmetric", 1, 3, 2, 3, -2),
    Sketcher.Constraint("Symmetric", 0, 3, 3, 3, -2),
    Sketcher.Constraint("Vertical", 0, 3, 1, 3),
    Sketcher.Constraint("Diameter", 0, 3.2),
    Sketcher.Constraint("DistanceY", 0, 3, 1, 3, 25.0),
    Sketcher.Constraint("DistanceX", 1, 3, 2, 3, 127.0),
    Sketcher.Constraint("DistanceY", 0, 3, -1, 1, 36.5),
])
pocket6 = body.newObject("PartDesign::Pocket", "Pocket005")
pocket6.Profile = sketch12
pocket6.Type = "ThroughAll"
pocket6.Reversed = True

doc.recompute()
